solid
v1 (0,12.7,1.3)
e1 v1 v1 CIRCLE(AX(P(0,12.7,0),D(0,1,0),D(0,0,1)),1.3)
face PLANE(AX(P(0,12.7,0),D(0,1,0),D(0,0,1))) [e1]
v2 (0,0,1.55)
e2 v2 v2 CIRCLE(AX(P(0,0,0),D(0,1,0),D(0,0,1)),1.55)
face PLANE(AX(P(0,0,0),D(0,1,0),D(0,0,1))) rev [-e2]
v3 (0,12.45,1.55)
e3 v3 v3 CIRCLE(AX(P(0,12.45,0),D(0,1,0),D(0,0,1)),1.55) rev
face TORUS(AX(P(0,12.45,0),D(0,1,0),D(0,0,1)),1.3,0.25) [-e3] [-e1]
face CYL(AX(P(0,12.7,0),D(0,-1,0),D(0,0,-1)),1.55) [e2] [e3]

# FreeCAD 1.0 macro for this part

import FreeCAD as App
import Part
import Sketcher

V = App.Vector
Q = App.Units.Quantity


def edges_at(feature, points):
    """Names of the edges that pass closest to the given points."""
    edges = feature.Shape.Edges
    near = lambda p: min(range(len(edges)), key=lambda i: edges[i].distToShape(Part.Vertex(*p))[0])
    return sorted({f"Edge{near(p) + 1}" for p in points})

doc = App.newDocument("Part")
body = doc.addObject("PartDesign::Body", "Body")

# Sketch on XZ plane
sketch1 = doc.addObject("Sketcher::SketchObject", "Sketch")
body.addObject(sketch1)
sketch1.AttachmentSupport = (doc.XZ_Plane, [""])
sketch1.MapMode = "FlatFace"
sketch1.addGeometry(Part.Circle(V(0, 0, 0), V(0, 0, 1), 1.55), False)
sketch1.addConstraint(Sketcher.Constraint("Coincident", 0, 3, -1, 1))
sketch1.addConstraint(Sketcher.Constraint("Diameter", 0, Q("3.1 mm")))
pad1 = doc.addObject("PartDesign::Pad", "Pad")
body.addObject(pad1)
pad1.Profile = sketch1
pad1.Length = 12.7
pad1.Reversed = True
doc.recompute()

fillet = doc.addObject("PartDesign::Fillet", "Fillet")
body.addObject(fillet)
fillet.Base = (pad1, edges_at(pad1, [(-1.55, 12.7, 0)]))
fillet.Radius = 0.25

doc.recompute()
